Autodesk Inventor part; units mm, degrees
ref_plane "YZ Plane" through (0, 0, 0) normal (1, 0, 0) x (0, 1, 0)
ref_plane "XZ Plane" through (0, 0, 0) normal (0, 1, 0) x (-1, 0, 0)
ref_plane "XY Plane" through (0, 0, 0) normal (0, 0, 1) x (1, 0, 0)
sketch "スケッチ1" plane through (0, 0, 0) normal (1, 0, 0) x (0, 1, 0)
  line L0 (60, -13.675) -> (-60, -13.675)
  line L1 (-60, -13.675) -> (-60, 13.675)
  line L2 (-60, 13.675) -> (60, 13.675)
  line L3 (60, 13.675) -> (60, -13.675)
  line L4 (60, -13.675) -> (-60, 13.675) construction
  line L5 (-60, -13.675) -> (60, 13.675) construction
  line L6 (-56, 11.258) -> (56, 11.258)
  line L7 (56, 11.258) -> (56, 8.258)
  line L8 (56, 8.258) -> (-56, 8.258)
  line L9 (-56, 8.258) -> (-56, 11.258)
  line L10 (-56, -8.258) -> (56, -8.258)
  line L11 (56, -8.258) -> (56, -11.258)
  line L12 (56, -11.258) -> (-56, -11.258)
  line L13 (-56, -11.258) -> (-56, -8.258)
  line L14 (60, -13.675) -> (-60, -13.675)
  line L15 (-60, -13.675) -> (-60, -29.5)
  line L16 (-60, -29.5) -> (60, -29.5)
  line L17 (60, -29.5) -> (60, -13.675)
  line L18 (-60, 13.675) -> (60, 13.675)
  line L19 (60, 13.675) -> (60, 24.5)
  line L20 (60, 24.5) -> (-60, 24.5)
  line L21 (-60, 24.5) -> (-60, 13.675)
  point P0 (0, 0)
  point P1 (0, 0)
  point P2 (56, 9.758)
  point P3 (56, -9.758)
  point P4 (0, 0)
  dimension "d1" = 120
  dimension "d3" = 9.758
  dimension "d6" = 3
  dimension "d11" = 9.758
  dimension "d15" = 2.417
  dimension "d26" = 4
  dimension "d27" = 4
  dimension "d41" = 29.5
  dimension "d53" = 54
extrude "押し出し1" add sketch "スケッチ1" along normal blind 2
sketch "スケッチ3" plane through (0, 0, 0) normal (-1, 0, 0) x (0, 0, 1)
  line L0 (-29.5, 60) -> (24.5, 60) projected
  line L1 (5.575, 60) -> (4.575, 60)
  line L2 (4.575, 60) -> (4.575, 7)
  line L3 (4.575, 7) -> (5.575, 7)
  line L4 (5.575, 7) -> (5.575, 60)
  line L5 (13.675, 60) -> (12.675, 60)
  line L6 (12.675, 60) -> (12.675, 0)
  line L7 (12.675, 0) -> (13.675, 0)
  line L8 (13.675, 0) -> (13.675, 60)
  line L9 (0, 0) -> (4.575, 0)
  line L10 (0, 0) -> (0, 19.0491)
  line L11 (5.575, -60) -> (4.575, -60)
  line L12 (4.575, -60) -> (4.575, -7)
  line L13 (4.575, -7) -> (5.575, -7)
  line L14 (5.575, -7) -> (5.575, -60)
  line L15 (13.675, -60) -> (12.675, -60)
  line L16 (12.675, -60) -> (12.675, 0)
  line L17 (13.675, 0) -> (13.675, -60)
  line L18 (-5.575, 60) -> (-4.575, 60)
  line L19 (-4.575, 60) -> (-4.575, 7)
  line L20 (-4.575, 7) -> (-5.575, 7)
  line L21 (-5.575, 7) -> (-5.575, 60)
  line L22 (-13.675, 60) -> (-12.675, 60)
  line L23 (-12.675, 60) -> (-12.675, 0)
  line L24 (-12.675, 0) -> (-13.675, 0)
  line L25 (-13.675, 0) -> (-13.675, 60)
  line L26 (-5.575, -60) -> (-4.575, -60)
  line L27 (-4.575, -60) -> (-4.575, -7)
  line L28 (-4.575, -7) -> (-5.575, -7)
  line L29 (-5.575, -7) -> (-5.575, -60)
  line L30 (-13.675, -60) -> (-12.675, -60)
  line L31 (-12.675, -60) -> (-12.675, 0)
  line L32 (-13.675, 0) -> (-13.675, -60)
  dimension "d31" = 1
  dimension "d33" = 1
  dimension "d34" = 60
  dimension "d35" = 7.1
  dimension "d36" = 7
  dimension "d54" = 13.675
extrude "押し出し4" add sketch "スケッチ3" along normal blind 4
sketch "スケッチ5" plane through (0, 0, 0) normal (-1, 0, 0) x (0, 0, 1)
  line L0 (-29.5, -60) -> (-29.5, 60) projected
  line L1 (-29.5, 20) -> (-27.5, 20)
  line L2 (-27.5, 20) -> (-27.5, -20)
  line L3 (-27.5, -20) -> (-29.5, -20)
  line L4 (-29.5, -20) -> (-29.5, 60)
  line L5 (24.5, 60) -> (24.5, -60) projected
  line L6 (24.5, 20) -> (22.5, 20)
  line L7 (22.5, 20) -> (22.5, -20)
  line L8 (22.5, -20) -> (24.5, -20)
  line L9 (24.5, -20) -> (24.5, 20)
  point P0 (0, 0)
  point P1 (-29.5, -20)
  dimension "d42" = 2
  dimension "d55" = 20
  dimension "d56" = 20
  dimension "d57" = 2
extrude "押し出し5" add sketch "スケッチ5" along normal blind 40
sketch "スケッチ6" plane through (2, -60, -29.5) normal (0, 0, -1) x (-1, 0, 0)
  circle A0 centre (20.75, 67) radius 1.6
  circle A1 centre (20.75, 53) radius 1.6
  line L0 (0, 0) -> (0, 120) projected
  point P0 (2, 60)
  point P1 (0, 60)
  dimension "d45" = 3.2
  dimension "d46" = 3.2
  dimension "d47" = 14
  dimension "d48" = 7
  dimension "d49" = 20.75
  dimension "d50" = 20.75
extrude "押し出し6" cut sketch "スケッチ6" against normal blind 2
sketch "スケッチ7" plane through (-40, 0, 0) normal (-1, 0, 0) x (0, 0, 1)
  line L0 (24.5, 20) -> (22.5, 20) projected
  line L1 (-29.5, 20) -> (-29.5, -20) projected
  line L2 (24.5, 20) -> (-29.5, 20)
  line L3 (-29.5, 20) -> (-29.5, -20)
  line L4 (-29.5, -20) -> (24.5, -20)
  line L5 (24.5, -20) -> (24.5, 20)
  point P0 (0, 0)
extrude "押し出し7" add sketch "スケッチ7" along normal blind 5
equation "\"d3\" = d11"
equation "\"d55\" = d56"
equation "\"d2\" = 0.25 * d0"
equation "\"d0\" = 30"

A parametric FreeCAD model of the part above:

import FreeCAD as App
import Part
import Sketcher
from FreeCAD import Vector
Q = App.Units.Quantity

doc = App.newDocument("Part")
body = doc.addObject("PartDesign::Body", "Body")

# Sketch on YZ plane
sketch1 = doc.addObject("Sketcher::SketchObject", "Sketch")
body.addObject(sketch1)
sketch1.AttachmentSupport = (doc.YZ_Plane, [""])
sketch1.MapMode = "FlatFace"
sketch1.addGeometry([
    Part.LineSegment(Vector(60, -29.5, 0), Vector(60, 24.5, 0)),  # 0
    Part.LineSegment(Vector(60, 24.5, 0), Vector(-60, 24.5, 0)),  # 1
    Part.LineSegment(Vector(-60, 24.5, 0), Vector(-60, -29.5, 0)),  # 2
    Part.LineSegment(Vector(-60, -29.5, 0), Vector(60, -29.5, 0)),  # 3
    Part.LineSegment(Vector(-56, 11.3, 0), Vector(56, 11.3, 0)),  # 4
    Part.LineSegment(Vector(56, 11.3, 0), Vector(56, 8.3, 0)),  # 5
    Part.LineSegment(Vector(56, 8.3, 0), Vector(-56, 8.3, 0)),  # 6
    Part.LineSegment(Vector(-56, 8.3, 0), Vector(-56, 11.3, 0)),  # 7
    Part.LineSegment(Vector(-56, -11.3, 0), Vector(-56, -8.3, 0)),  # 8
    Part.LineSegment(Vector(-56, -8.3, 0), Vector(56, -8.3, 0)),  # 9
    Part.LineSegment(Vector(56, -8.3, 0), Vector(56, -11.3, 0)),  # 10
    Part.LineSegment(Vector(56, -11.3, 0), Vector(-56, -11.3, 0)),  # 11
], False)
sketch1.addConstraint([
    Sketcher.Constraint("Coincident", 0, 2, 1, 1),
    Sketcher.Constraint("Coincident", 1, 2, 2, 1),
    Sketcher.Constraint("Coincident", 2, 2, 3, 1),
    Sketcher.Constraint("Coincident", 3, 2, 0, 1),
    Sketcher.Constraint("Coincident", 4, 2, 5, 1),
    Sketcher.Constraint("Coincident", 5, 2, 6, 1),
    Sketcher.Constraint("Coincident", 6, 2, 7, 1),
    Sketcher.Constraint("Coincident", 7, 2, 4, 1),
    Sketcher.Constraint("Coincident", 8, 2, 9, 1),
    Sketcher.Constraint("Coincident", 9, 2, 10, 1),
    Sketcher.Constraint("Coincident", 10, 2, 11, 1),
    Sketcher.Constraint("Coincident", 11, 2, 8, 1),
    Sketcher.Constraint("Vertical", 0),
    Sketcher.Constraint("Horizontal", 1),
    Sketcher.Constraint("Vertical", 2),
    Sketcher.Constraint("Horizontal", 3),
    Sketcher.Constraint("Horizontal", 4),
    Sketcher.Constraint("Vertical", 5),
    Sketcher.Constraint("Horizontal", 6),
    Sketcher.Constraint("Vertical", 7),
    Sketcher.Constraint("Vertical", 8),
    Sketcher.Constraint("Horizontal", 9),
    Sketcher.Constraint("Vertical", 10),
    Sketcher.Constraint("Horizontal", 11),
    Sketcher.Constraint("Symmetric", 5, 2, 8, 2, -1, 1),
    Sketcher.Constraint("Symmetric", 7, 2, 10, 2, -1, 1),
    Sketcher.Constraint("Vertical", 7, 2, 8, 2),
    Sketcher.Constraint("DistanceX", 1, 2, 1, 1, Q("120 mm")),
    Sketcher.Constraint("DistanceY", 0, 1, 0, 2, Q("54 mm")),
    Sketcher.Constraint("DistanceY", 5, 2, 5, 1, Q("3 mm")),
    Sketcher.Constraint("DistanceX", 4, 2, 0, 2, Q("4 mm")),
    Sketcher.Constraint("DistanceX", 1, 2, 6, 2, Q("4 mm")),
    Sketcher.Constraint("DistanceY", 2, 2, -1, 1, Q("29.5 mm")),
    Sketcher.Constraint("DistanceY", -1, 1, 4, 2, Q("11.258 mm")),
])
pad1 = doc.addObject("PartDesign::Pad", "Pad")
body.addObject(pad1)
pad1.Profile = sketch1
pad1.Length = 2

# Sketch on YZ plane
sketch2 = doc.addObject("Sketcher::SketchObject", "Sketch001")
body.addObject(sketch2)
sketch2.AttachmentSupport = (doc.YZ_Plane, [""])
sketch2.MapMode = "FlatFace"
sketch2.addGeometry([
    Part.LineSegment(Vector(60, 13.7, 0), Vector(60, 12.7, 0)),  # 0
    Part.LineSegment(Vector(60, 12.7, 0), Vector(-60, 12.7, 0)),  # 1
    Part.LineSegment(Vector(-60, 12.7, 0), Vector(-60, 13.7, 0)),  # 2
    Part.LineSegment(Vector(-60, 13.7, 0), Vector(60, 13.7, 0)),  # 3
    Part.LineSegment(Vector(60, 5.6, 0), Vector(60, 4.6, 0)),  # 4
    Part.LineSegment(Vector(60, 4.6, 0), Vector(7, 4.6, 0)),  # 5
    Part.LineSegment(Vector(7, 4.6, 0), Vector(7, 5.6, 0)),  # 6
    Part.LineSegment(Vector(7, 5.6, 0), Vector(60, 5.6, 0)),  # 7
    Part.LineSegment(Vector(60, -4.6, 0), Vector(60, -5.6, 0)),  # 8
    Part.LineSegment(Vector(60, -5.6, 0), Vector(7, -5.6, 0)),  # 9
    Part.LineSegment(Vector(7, -5.6, 0), Vector(7, -4.6, 0)),  # 10
    Part.LineSegment(Vector(7, -4.6, 0), Vector(60, -4.6, 0)),  # 11
    Part.LineSegment(Vector(60, -12.7, 0), Vector(60, -13.7, 0)),  # 12
    Part.LineSegment(Vector(60, -13.7, 0), Vector(-60, -13.7, 0)),  # 13
    Part.LineSegment(Vector(-60, -13.7, 0), Vector(-60, -12.7, 0)),  # 14
    Part.LineSegment(Vector(-60, -12.7, 0), Vector(60, -12.7, 0)),  # 15
    Part.LineSegment(Vector(-60, 4.6, 0), Vector(-60, 5.6, 0)),  # 16
    Part.LineSegment(Vector(-60, 5.6, 0), Vector(-7, 5.6, 0)),  # 17
    Part.LineSegment(Vector(-7, 5.6, 0), Vector(-7, 4.6, 0)),  # 18
    Part.LineSegment(Vector(-7, 4.6, 0), Vector(-60, 4.6, 0)),  # 19
    Part.LineSegment(Vector(-7, -5.6, 0), Vector(-60, -5.6, 0)),  # 20
    Part.LineSegment(Vector(-60, -5.6, 0), Vector(-60, -4.6, 0)),  # 21
    Part.LineSegment(Vector(-60, -4.6, 0), Vector(-7, -4.6, 0)),  # 22
    Part.LineSegment(Vector(-7, -4.6, 0), Vector(-7, -5.6, 0)),  # 23
], False)
sketch2.addConstraint([
    Sketcher.Constraint("Coincident", 0, 2, 1, 1),
    Sketcher.Constraint("Coincident", 1, 2, 2, 1),
    Sketcher.Constraint("Coincident", 2, 2, 3, 1),
    Sketcher.Constraint("Coincident", 3, 2, 0, 1),
    Sketcher.Constraint("Coincident", 4, 2, 5, 1),
    Sketcher.Constraint("Coincident", 5, 2, 6, 1),
    Sketcher.Constraint("Coincident", 6, 2, 7, 1),
    Sketcher.Constraint("Coincident", 7, 2, 4, 1),
    Sketcher.Constraint("Coincident", 8, 2, 9, 1),
    Sketcher.Constraint("Coincident", 9, 2, 10, 1),
    Sketcher.Constraint("Coincident", 10, 2, 11, 1),
    Sketcher.Constraint("Coincident", 11, 2, 8, 1),
    Sketcher.Constraint("Coincident", 12, 2, 13, 1),
    Sketcher.Constraint("Coincident", 13, 2, 14, 1),
    Sketcher.Constraint("Coincident", 14, 2, 15, 1),
    Sketcher.Constraint("Coincident", 15, 2, 12, 1),
    Sketcher.Constraint("Coincident", 16, 2, 17, 1),
    Sketcher.Constraint("Coincident", 17, 2, 18, 1),
    Sketcher.Constraint("Coincident", 18, 2, 19, 1),
    Sketcher.Constraint("Coincident", 19, 2, 16, 1),
    Sketcher.Constraint("Coincident", 20, 2, 21, 1),
    Sketcher.Constraint("Coincident", 21, 2, 22, 1),
    Sketcher.Constraint("Coincident", 22, 2, 23, 1),
    Sketcher.Constraint("Coincident", 23, 2, 20, 1),
    Sketcher.Constraint("Vertical", 0),
    Sketcher.Constraint("Horizontal", 1),
    Sketcher.Constraint("Vertical", 2),
    Sketcher.Constraint("Horizontal", 3),
    Sketcher.Constraint("Vertical", 4),
    Sketcher.Constraint("Horizontal", 5),
    Sketcher.Constraint("Vertical", 6),
    Sketcher.Constraint("Horizontal", 7),
    Sketcher.Constraint("Vertical", 8),
    Sketcher.Constraint("Horizontal", 9),
    Sketcher.Constraint("Vertical", 10),
    Sketcher.Constraint("Horizontal", 11),
    Sketcher.Constraint("Vertical", 12),
    Sketcher.Constraint("Horizontal", 13),
    Sketcher.Constraint("Vertical", 14),
    Sketcher.Constraint("Horizontal", 15),
    Sketcher.Constraint("Vertical", 16),
    Sketcher.Constraint("Horizontal", 17),
    Sketcher.Constraint("Vertical", 18),
    Sketcher.Constraint("Horizontal", 19),
    Sketcher.Constraint("Horizontal", 20),
    Sketcher.Constraint("Vertical", 21),
    Sketcher.Constraint("Horizontal", 22),
    Sketcher.Constraint("Vertical", 23),
    Sketcher.Constraint("Symmetric", 2, 2, 12, 2, -1, 1),
    Sketcher.Constraint("Symmetric", 0, 2, 14, 2, -1, 1),
    Sketcher.Constraint("Symmetric", 8, 2, 16, 2, -1, 1),
    Sketcher.Constraint("Symmetric", 10, 2, 18, 2, -1, 1),
    Sketcher.Constraint("Symmetric", 7, 2, 20, 2, -1, 1),
    Sketcher.Constraint("Symmetric", 5, 2, 22, 2, -1, 1),
    Sketcher.Constraint("Symmetric", 7, 2, 16, 2, -2),
    Sketcher.Constraint("Symmetric", 5, 2, 18, 2, -2),
    Sketcher.Constraint("Vertical", 3, 2, 4, 2),
    Sketcher.Constraint("Vertical", 11, 2, 12, 2),
    Sketcher.Constraint("Equal", 2, 4),
    Sketcher.Constraint("DistanceY", 0, 2, 0, 1, Q("1 mm")),
    Sketcher.Constraint("DistanceX", -1, 1, 0, 2, Q("60 mm")),
    Sketcher.Constraint("DistanceX", -1, 1, 5, 2, Q("7 mm")),
    Sketcher.Constraint("DistanceY", 6, 2, 0, 2, Q("7.1 mm")),
    Sketcher.Constraint("DistanceY", -1, 1, 2, 2, Q("13.675 mm")),
])
pad2 = doc.addObject("PartDesign::Pad", "Pad001")
body.addObject(pad2)
pad2.Profile = sketch2
pad2.Length = 4
pad2.Reversed = True

# Sketch on YZ plane
sketch3 = doc.addObject("Sketcher::SketchObject", "Sketch002")
body.addObject(sketch3)
sketch3.AttachmentSupport = (doc.YZ_Plane, [""])
sketch3.MapMode = "FlatFace"
sketch3.addGeometry([
    Part.LineSegment(Vector(20, -29.5, 0), Vector(-20, -29.5, 0)),  # 0
    Part.LineSegment(Vector(-20, -29.5, 0), Vector(-20, -27.5, 0)),  # 1
    Part.LineSegment(Vector(-20, -27.5, 0), Vector(20, -27.5, 0)),  # 2
    Part.LineSegment(Vector(20, -27.5, 0), Vector(20, -29.5, 0)),  # 3
    Part.LineSegment(Vector(-20, 24.5, 0), Vector(20, 24.5, 0)),  # 4
    Part.LineSegment(Vector(20, 24.5, 0), Vector(20, 22.5, 0)),  # 5
    Part.LineSegment(Vector(20, 22.5, 0), Vector(-20, 22.5, 0)),  # 6
    Part.LineSegment(Vector(-20, 22.5, 0), Vector(-20, 24.5, 0)),  # 7
], False)
sketch3.addConstraint([
    Sketcher.Constraint("Coincident", 0, 2, 1, 1),
    Sketcher.Constraint("Coincident", 1, 2, 2, 1),
    Sketcher.Constraint("Coincident", 2, 2, 3, 1),
    Sketcher.Constraint("Coincident", 3, 2, 0, 1),
    Sketcher.Constraint("Coincident", 4, 2, 5, 1),
    Sketcher.Constraint("Coincident", 5, 2, 6, 1),
    Sketcher.Constraint("Coincident", 6, 2, 7, 1),
    Sketcher.Constraint("Coincident", 7, 2, 4, 1),
    Sketcher.Constraint("Horizontal", 0),
    Sketcher.Constraint("Vertical", 1),
    Sketcher.Constraint("Horizontal", 2),
    Sketcher.Constraint("Vertical", 3),
    Sketcher.Constraint("Horizontal", 4),
    Sketcher.Constraint("Vertical", 5),
    Sketcher.Constraint("Horizontal", 6),
    Sketcher.Constraint("Vertical", 7),
    Sketcher.Constraint("Vertical", 3, 2, 4, 2),
    Sketcher.Constraint("Vertical", 1, 2, 6, 2),
    Sketcher.Constraint("Equal", 3, 5),
    Sketcher.Constraint("DistanceY", 1, 1, 1, 2, Q("2 mm")),
    Sketcher.Constraint("DistanceX", 0, 2, -1, 1, Q("20 mm")),
    Sketcher.Constraint("DistanceX", -1, 1, 2, 2, Q("20 mm")),
    Sketcher.Constraint("DistanceY", 2, 2, 4, 2, Q("52 mm")),
    Sketcher.Constraint("DistanceY", 0, 2, -1, 1, Q("29.5 mm")),
])
pad3 = doc.addObject("PartDesign::Pad", "Pad002")
body.addObject(pad3)
pad3.Profile = sketch3
pad3.Length = 40
pad3.Reversed = True

# Sketch on XY plane
sketch4 = doc.addObject("Sketcher::SketchObject", "Sketch003")
body.addObject(sketch4)
sketch4.AttachmentSupport = (doc.XY_Plane, [""])
sketch4.MapMode = "FlatFace"
sketch4.AttachmentOffset = App.Placement(Vector(0, 0, -29.5), App.Rotation())
sketch4.addGeometry([
    Part.Circle(Vector(-18.8, 7, 0), Vector(0, 0, 1), 1.6),
    Part.Circle(Vector(-18.8, -7, 0), Vector(0, 0, 1), 1.6),
], False)
sketch4.addConstraint([
    Sketcher.Constraint("Equal", 0, 1),
    Sketcher.Constraint("Symmetric", 0, 3, 1, 3, -1),
    Sketcher.Constraint("Diameter", 0, Q("3.2 mm")),
    Sketcher.Constraint("DistanceY", -1, 1, 0, 3, Q("7 mm")),
    Sketcher.Constraint("DistanceX", 0, 3, -1, 1, Q("18.75 mm")),
])
pocket1 = doc.addObject("PartDesign::Pocket", "Pocket")
body.addObject(pocket1)
pocket1.Profile = sketch4
pocket1.Length = 2
pocket1.Reversed = True

# Sketch on YZ plane
sketch5 = doc.addObject("Sketcher::SketchObject", "Sketch004")
body.addObject(sketch5)
sketch5.AttachmentSupport = (doc.YZ_Plane, [""])
sketch5.MapMode = "FlatFace"
sketch5.AttachmentOffset = App.Placement(Vector(0, 0, -40), App.Rotation())
sketch5.addGeometry([
    Part.LineSegment(Vector(-20, 24, 0), Vector(20, 24, 0)),
    Part.LineSegment(Vector(20, 24, 0), Vector(20, -30, 0)),
    Part.LineSegment(Vector(20, -30, 0), Vector(-20, -30, 0)),
    Part.LineSegment(Vector(-20, -30, 0), Vector(-20, 24, 0)),
], False)
sketch5.addConstraint([
    Sketcher.Constraint("Coincident", 0, 2, 1, 1),
    Sketcher.Constraint("Coincident", 1, 2, 2, 1),
    Sketcher.Constraint("Coincident", 2, 2, 3, 1),
    Sketcher.Constraint("Coincident", 3, 2, 0, 1),
    Sketcher.Constraint("Horizontal", 0),
    Sketcher.Constraint("Vertical", 1),
    Sketcher.Constraint("Horizontal", 2),
    Sketcher.Constraint("Vertical", 3),
    Sketcher.Constraint("DistanceX", 0, 1, 0, 2, Q("40 mm")),
    Sketcher.Constraint("DistanceY", 1, 2, 1, 1, Q("54 mm")),
    Sketcher.Constraint("DistanceX", -1, 1, 0, 2, Q("20 mm")),
    Sketcher.Constraint("DistanceY", -1, 1, 0, 2, Q("24.5 mm")),
])
pad4 = doc.addObject("PartDesign::Pad", "Pad003")
body.addObject(pad4)
pad4.Profile = sketch5
pad4.Length = 5
pad4.Reversed = True

doc.recompute()
